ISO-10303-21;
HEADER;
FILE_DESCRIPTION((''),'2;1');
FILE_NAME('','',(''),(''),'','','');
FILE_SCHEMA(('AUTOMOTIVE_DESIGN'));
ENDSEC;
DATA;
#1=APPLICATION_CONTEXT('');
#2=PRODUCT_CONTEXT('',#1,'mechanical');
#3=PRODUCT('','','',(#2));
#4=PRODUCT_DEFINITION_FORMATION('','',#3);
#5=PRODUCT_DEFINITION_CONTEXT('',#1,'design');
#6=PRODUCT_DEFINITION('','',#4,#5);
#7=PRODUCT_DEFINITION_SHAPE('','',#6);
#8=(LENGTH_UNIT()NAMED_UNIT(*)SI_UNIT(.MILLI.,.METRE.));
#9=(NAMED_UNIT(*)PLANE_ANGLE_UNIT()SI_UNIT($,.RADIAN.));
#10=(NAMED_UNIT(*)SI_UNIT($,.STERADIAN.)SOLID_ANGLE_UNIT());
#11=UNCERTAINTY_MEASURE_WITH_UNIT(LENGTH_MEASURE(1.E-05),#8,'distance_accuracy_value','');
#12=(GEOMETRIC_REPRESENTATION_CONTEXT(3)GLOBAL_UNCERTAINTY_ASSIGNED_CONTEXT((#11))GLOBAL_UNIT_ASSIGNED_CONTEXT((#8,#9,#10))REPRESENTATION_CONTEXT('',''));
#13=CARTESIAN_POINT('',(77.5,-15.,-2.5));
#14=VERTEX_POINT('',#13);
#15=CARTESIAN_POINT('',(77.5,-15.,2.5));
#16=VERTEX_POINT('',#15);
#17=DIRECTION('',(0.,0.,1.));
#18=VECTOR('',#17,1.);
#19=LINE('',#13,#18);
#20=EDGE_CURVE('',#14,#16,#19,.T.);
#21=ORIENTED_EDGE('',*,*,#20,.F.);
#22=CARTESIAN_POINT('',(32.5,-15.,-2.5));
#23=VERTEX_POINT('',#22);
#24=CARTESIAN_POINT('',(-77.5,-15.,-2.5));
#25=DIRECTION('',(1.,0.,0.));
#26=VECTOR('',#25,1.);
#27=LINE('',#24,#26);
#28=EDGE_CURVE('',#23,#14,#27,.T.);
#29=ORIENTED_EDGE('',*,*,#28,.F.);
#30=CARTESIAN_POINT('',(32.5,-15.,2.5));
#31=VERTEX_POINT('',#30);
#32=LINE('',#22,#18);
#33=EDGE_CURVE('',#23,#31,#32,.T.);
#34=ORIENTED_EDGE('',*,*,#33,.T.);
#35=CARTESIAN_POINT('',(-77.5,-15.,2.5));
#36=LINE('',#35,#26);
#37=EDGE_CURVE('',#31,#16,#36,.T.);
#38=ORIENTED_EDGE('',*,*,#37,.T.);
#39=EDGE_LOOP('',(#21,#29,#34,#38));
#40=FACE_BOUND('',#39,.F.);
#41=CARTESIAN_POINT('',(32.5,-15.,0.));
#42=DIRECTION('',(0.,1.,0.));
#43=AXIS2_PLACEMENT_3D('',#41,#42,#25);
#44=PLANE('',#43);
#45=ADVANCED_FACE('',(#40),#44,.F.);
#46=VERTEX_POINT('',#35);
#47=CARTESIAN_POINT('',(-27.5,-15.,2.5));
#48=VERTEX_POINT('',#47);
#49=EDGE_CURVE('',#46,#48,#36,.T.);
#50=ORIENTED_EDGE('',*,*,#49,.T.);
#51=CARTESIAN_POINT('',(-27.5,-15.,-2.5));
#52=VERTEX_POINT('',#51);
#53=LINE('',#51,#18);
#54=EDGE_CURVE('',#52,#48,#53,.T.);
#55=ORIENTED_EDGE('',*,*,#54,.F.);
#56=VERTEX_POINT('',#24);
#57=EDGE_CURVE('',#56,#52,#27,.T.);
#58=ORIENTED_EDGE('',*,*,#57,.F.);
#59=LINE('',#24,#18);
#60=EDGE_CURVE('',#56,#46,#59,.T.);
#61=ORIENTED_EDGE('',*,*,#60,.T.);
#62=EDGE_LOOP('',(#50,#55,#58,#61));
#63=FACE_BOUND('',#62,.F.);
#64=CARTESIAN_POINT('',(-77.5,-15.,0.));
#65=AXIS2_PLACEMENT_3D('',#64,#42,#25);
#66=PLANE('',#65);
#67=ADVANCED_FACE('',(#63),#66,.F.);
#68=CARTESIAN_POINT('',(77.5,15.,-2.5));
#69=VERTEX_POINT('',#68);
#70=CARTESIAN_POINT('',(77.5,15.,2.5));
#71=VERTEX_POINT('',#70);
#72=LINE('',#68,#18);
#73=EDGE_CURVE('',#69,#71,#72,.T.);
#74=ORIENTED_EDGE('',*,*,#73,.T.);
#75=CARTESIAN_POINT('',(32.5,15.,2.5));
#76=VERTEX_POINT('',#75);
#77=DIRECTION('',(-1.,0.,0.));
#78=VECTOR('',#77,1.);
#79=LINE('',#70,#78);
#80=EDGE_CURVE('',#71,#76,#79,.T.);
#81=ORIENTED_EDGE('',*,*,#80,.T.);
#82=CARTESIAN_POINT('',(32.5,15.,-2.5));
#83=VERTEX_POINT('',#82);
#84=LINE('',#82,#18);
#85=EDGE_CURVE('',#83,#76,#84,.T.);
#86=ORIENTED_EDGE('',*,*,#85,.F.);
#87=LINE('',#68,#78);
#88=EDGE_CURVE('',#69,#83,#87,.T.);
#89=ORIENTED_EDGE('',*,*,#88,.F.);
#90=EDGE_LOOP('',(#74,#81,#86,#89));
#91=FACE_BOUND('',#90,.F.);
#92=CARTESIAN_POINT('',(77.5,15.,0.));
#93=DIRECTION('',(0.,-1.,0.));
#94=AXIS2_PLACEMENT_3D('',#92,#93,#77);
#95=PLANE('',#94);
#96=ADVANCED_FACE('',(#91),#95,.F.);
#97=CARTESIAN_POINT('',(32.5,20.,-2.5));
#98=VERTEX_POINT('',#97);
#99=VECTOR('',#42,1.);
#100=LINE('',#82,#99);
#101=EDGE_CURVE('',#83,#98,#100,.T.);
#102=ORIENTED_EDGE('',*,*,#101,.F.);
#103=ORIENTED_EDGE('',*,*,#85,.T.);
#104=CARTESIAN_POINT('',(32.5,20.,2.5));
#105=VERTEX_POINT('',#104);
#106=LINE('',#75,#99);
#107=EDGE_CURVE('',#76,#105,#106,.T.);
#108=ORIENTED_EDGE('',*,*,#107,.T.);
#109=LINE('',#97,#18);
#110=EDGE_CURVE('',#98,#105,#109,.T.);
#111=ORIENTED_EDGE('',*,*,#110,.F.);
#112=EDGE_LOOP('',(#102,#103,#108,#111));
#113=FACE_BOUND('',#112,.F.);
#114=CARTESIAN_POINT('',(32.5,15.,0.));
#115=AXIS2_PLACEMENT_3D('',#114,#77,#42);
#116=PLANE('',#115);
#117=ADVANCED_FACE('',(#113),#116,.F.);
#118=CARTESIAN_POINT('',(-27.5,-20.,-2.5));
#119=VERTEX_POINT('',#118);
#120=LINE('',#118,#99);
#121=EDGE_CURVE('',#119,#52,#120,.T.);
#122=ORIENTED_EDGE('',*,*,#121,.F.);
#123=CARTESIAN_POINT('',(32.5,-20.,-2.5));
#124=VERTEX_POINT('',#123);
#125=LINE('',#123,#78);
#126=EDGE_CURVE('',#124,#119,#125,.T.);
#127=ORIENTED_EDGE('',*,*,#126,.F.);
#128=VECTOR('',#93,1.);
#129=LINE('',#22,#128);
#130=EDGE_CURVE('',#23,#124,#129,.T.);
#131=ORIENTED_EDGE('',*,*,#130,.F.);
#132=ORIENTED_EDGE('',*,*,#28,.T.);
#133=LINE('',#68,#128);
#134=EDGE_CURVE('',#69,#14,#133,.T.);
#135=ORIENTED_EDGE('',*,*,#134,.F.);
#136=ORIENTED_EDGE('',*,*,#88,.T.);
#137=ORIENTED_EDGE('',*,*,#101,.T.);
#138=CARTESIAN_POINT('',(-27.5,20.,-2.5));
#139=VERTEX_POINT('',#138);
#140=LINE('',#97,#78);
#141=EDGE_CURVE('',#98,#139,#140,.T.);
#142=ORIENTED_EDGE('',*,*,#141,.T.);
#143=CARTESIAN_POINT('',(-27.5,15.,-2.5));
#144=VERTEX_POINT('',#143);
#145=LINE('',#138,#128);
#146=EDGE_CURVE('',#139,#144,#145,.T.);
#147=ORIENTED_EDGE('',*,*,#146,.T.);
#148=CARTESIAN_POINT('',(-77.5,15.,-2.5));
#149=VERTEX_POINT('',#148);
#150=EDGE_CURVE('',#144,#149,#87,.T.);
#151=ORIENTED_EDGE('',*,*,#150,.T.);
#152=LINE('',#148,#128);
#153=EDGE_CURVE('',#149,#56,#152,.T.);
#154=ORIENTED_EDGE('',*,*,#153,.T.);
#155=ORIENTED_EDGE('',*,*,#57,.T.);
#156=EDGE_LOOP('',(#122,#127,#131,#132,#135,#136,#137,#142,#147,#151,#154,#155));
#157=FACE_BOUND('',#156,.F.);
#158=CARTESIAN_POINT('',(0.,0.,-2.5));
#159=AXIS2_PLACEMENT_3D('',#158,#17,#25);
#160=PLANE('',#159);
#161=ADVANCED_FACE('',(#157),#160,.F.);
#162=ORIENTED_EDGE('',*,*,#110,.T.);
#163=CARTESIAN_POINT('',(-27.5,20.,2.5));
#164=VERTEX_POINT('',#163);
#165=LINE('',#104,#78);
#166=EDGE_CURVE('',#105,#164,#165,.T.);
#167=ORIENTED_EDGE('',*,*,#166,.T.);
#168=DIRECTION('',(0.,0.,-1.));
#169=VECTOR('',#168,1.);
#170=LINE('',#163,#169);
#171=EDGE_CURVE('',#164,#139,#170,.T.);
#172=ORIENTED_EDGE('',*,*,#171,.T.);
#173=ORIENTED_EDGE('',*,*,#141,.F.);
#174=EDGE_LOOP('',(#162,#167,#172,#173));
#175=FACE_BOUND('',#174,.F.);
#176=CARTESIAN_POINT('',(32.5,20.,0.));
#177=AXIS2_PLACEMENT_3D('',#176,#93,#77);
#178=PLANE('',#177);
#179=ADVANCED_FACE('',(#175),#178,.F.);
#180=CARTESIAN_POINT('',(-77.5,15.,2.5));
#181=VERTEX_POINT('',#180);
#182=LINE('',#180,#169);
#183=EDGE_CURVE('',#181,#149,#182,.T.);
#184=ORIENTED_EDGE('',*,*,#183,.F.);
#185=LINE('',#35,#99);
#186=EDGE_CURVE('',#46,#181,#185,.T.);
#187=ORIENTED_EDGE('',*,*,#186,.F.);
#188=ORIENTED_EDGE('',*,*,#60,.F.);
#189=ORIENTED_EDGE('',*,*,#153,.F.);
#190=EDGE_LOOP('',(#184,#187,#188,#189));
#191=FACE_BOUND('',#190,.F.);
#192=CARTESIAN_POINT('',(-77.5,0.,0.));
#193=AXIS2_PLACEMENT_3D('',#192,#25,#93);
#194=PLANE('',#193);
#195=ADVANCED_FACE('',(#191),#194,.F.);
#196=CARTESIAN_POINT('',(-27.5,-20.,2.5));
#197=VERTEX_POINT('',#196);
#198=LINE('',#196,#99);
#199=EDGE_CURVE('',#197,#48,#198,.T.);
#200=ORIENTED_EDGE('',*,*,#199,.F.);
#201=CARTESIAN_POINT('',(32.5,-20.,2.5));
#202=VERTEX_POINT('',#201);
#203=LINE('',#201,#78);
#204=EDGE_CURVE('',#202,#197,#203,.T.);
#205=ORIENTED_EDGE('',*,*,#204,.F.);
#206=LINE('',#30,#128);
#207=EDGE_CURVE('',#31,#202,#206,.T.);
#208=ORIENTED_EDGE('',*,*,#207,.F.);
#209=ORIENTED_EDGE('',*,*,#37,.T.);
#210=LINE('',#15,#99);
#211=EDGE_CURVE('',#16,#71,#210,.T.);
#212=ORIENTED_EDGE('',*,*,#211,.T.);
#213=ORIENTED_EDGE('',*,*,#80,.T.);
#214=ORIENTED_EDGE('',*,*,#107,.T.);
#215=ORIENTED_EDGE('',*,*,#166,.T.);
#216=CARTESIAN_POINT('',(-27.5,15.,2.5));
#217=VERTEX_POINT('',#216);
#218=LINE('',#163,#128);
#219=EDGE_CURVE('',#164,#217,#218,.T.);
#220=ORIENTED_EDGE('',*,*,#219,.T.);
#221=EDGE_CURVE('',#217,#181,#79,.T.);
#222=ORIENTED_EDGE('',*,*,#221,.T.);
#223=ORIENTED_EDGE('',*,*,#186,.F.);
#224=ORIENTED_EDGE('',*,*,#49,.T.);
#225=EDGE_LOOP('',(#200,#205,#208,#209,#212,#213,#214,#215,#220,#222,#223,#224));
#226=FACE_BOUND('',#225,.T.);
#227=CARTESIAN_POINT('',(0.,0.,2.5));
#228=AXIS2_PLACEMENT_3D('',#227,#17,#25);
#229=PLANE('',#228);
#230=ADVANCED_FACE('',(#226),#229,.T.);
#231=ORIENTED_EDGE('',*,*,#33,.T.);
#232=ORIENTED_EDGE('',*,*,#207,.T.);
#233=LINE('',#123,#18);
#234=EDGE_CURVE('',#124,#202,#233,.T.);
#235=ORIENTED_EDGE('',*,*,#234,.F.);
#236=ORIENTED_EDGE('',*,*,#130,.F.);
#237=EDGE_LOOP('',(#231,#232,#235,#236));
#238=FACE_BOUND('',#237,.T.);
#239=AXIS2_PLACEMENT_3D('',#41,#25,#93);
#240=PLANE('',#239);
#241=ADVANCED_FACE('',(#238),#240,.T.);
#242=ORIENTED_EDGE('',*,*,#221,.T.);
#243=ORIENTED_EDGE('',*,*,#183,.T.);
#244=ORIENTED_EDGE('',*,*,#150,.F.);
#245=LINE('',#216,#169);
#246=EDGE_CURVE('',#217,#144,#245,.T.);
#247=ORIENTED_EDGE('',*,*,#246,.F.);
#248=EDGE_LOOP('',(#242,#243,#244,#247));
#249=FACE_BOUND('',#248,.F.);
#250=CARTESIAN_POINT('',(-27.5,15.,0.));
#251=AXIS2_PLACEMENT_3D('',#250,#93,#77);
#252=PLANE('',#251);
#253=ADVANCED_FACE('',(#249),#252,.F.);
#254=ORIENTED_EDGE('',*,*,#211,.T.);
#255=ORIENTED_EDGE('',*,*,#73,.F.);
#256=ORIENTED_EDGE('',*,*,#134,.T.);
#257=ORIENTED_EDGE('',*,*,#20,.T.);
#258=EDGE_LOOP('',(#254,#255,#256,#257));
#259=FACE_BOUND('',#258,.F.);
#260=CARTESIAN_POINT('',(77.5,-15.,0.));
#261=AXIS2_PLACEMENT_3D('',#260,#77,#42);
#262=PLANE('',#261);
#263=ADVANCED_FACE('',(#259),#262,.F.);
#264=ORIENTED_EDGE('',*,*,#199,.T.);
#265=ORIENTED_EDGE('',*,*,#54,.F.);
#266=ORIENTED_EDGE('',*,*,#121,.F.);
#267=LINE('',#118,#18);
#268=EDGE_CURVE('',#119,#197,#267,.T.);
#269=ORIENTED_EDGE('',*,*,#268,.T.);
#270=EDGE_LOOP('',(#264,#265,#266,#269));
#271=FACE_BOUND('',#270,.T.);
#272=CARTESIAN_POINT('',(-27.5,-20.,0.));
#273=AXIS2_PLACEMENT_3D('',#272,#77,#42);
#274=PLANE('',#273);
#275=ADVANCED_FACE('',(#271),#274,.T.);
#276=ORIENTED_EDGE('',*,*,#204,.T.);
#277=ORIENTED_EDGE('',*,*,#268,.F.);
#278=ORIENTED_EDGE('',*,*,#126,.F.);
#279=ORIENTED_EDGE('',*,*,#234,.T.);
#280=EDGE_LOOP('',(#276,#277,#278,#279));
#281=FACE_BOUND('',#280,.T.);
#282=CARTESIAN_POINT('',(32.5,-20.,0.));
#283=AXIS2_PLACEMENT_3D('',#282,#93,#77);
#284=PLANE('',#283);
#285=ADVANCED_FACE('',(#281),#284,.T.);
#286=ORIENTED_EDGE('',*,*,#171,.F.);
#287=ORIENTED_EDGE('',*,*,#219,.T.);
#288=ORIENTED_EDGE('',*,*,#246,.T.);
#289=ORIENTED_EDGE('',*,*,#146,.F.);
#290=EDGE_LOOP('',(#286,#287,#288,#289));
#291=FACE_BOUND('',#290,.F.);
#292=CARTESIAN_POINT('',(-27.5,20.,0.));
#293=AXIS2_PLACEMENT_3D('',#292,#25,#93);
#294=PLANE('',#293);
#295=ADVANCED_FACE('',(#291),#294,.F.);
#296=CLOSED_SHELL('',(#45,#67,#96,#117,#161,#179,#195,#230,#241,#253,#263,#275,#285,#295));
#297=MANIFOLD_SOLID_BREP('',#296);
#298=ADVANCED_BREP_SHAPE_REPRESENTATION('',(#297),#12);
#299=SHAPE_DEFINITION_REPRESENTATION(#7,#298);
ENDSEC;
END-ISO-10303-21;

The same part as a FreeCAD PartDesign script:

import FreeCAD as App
import Part
import Sketcher

V = App.Vector
Q = App.Units.Quantity


def add_polygon(sketch, points):
    """Adds a closed chain of lines whose ends are joined by coincident constraints."""
    first, n = sketch.GeometryCount, len(points)
    for a, b in zip(points, points[1:] + points[:1]):
        sketch.addGeometry(Part.LineSegment(App.Vector(*a, 0), App.Vector(*b, 0)), False)
    for i in range(n):
        sketch.addConstraint(Sketcher.Constraint("Coincident", first + i, 2, first + (i + 1) % n, 1))

doc = App.newDocument("Part")
body = doc.addObject("PartDesign::Body", "Body")

# Sketch on XY plane
sketch1 = body.newObject("Sketcher::SketchObject", "Sketch")
sketch1.AttachmentSupport = (doc.getObject("XY_Plane"), [""])
sketch1.MapMode = "FlatFace"
add_polygon(sketch1, [(-78, -15), (-28, -15), (-28, -20), (32, -20), (32, -15), (78, -15), (78, 15), (32, 15), (32, 20), (-28, 20), (-28, 15), (-78, 15)])  # lines 0-11
sketch1.addConstraint([
    Sketcher.Constraint("Horizontal", 0),
    Sketcher.Constraint("Vertical", 1),
    Sketcher.Constraint("Horizontal", 2),
    Sketcher.Constraint("Vertical", 3),
    Sketcher.Constraint("Horizontal", 4),
    Sketcher.Constraint("Vertical", 5),
    Sketcher.Constraint("Horizontal", 6),
    Sketcher.Constraint("Vertical", 7),
    Sketcher.Constraint("Horizontal", 8),
    Sketcher.Constraint("Vertical", 9),
    Sketcher.Constraint("Horizontal", 10),
    Sketcher.Constraint("Vertical", 11),
    Sketcher.Constraint("Symmetric", 4, 2, 10, 2, -1, 1),
    Sketcher.Constraint("Symmetric", 3, 2, 6, 2, -1),
    Sketcher.Constraint("Symmetric", 1, 2, 8, 2, -1),
    Sketcher.Constraint("Horizontal", 0, 2, 3, 2),
    Sketcher.Constraint("DistanceX", 2, 1, 2, 2, Q("60 mm")),
    Sketcher.Constraint("DistanceX", 4, 1, 4, 2, Q("45 mm")),
    Sketcher.Constraint("DistanceY", 1, 2, 1, 1, Q("5 mm")),
    Sketcher.Constraint("DistanceY", 5, 1, 5, 2, Q("30 mm")),
    Sketcher.Constraint("DistanceX", 0, 1, 0, 2, Q("50 mm")),
])
pad1 = body.newObject("PartDesign::Pad", "Pad")
pad1.Profile = sketch1
pad1.Length = 5
pad1.Midplane = True

doc.recompute()
